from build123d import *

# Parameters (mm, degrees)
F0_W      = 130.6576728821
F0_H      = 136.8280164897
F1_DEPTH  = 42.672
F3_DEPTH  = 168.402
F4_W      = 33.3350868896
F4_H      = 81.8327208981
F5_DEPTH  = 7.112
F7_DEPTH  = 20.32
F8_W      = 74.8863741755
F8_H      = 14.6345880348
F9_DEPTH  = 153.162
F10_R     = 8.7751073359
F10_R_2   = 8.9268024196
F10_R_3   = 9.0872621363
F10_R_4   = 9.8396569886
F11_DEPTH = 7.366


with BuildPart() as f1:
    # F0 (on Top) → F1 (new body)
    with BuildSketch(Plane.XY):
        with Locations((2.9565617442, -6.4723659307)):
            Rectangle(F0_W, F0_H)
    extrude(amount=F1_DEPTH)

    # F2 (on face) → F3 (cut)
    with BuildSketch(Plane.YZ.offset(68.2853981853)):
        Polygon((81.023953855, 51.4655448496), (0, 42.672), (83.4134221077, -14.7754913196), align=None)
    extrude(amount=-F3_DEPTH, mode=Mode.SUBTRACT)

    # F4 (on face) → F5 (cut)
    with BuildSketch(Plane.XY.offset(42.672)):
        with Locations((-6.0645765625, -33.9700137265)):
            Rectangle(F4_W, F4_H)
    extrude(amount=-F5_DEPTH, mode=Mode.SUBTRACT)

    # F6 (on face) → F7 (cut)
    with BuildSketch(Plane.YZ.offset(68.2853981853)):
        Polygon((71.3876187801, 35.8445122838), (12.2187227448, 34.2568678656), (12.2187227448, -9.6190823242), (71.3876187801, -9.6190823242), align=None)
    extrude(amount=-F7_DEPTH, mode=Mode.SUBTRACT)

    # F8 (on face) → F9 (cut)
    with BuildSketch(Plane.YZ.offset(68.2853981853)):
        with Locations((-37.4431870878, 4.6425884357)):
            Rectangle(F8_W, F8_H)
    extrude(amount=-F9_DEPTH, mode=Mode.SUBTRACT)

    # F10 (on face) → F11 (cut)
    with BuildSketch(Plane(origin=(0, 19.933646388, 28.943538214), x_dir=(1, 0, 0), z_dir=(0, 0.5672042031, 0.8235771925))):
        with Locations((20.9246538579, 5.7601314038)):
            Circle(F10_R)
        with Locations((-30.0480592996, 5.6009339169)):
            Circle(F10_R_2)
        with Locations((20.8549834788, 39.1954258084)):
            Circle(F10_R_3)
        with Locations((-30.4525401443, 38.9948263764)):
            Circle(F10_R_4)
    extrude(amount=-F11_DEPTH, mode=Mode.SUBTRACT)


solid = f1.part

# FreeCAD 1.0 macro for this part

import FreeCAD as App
import Part
import Sketcher

V = App.Vector
Q = App.Units.Quantity


def add_polygon(sketch, points):
    """Adds a closed chain of lines whose ends are joined by coincident constraints."""
    first, n = sketch.GeometryCount, len(points)
    for a, b in zip(points, points[1:] + points[:1]):
        sketch.addGeometry(Part.LineSegment(App.Vector(*a, 0), App.Vector(*b, 0)), False)
    for i in range(n):
        sketch.addConstraint(Sketcher.Constraint("Coincident", first + i, 2, first + (i + 1) % n, 1))

doc = App.newDocument("Part")
body = doc.addObject("PartDesign::Body", "Body")

# Sketch on XY plane
sketch1 = body.newObject("Sketcher::SketchObject", "Sketch")
sketch1.AttachmentSupport = (doc.getObject("XY_Plane"), [""])
sketch1.MapMode = "FlatFace"
add_polygon(sketch1, [(-62, 62), (-62, -75), (68, -75), (68, 62)])  # lines 0-3
sketch1.addConstraint([
    Sketcher.Constraint("Vertical", 0),
    Sketcher.Constraint("Horizontal", 1),
    Sketcher.Constraint("Vertical", 2),
    Sketcher.Constraint("Horizontal", 3),
    Sketcher.Constraint("DistanceX", -1, 1, 1, 2, Q("68.285398 mm")),
    Sketcher.Constraint("DistanceX", 1, 1, 1, 2, Q("130.657673 mm")),
    Sketcher.Constraint("DistanceY", 0, 2, 0, 1, Q("136.828016 mm")),
    Sketcher.Constraint("DistanceY", 0, 2, -1, 1, Q("74.886374 mm")),
])
pad1 = body.newObject("PartDesign::Pad", "Pad")
pad1.Profile = sketch1
pad1.Length = Q("1.68 in")

# Sketch on YZ plane
sketch2 = body.newObject("Sketcher::SketchObject", "Sketch001")
sketch2.AttachmentSupport = (doc.getObject("YZ_Plane"), [""])
sketch2.MapMode = "FlatFace"
sketch2.AttachmentOffset = App.Placement(V(0, 0, 68.285398), App.Rotation())
add_polygon(sketch2, [(81, 51), (0, 43), (83, -15)])  # lines 0-2
sketch2.addConstraint([
    Sketcher.Constraint("PointOnObject", 0, 2, -2),
    Sketcher.Constraint("DistanceY", -1, 1, 0, 2, Q("1.68 in")),
    Sketcher.Constraint("Distance", 0, Q("81.499739 mm")),
    Sketcher.Constraint("Distance", 1, Q("101.281851 mm")),
    Sketcher.Constraint("Distance", 2, Q("66.284119 mm")),
    Sketcher.Constraint("DistanceY", 1, 2, -1, 1, Q("14.775491 mm")),
])
pocket1 = body.newObject("PartDesign::Pocket", "Pocket")
pocket1.Profile = sketch2
pocket1.Length = Q("6.63 in")

# Sketch on XY plane
sketch3 = body.newObject("Sketcher::SketchObject", "Sketch002")
sketch3.AttachmentSupport = (doc.getObject("XY_Plane"), [""])
sketch3.MapMode = "FlatFace"
sketch3.AttachmentOffset = App.Placement(V(0, 0, 1.68 * 25.4), App.Rotation())
add_polygon(sketch3, [(-23, 7), (-23, -75), (11, -75), (11, 7)])  # lines 0-3
sketch3.addConstraint([
    Sketcher.Constraint("Vertical", 0),
    Sketcher.Constraint("Horizontal", 1),
    Sketcher.Constraint("Vertical", 2),
    Sketcher.Constraint("Horizontal", 3),
    Sketcher.Constraint("DistanceY", 0, 2, 0, 1, Q("81.832721 mm")),
    Sketcher.Constraint("DistanceX", 1, 1, 1, 2, Q("33.335087 mm")),
    Sketcher.Constraint("DistanceX", 0, 2, -1, 1, Q("22.73212 mm")),
    Sketcher.Constraint("DistanceY", 0, 2, -1, 1, Q("74.886374 mm")),
])
pocket2 = body.newObject("PartDesign::Pocket", "Pocket001")
pocket2.Profile = sketch3
pocket2.Length = Q("0.28 in")

# Sketch on YZ plane
sketch4 = body.newObject("Sketcher::SketchObject", "Sketch003")
sketch4.AttachmentSupport = (doc.getObject("YZ_Plane"), [""])
sketch4.MapMode = "FlatFace"
sketch4.AttachmentOffset = App.Placement(V(0, 0, 68.285398), App.Rotation())
add_polygon(sketch4, [(71, 36), (12, 34), (12, -10), (71, -10)])  # lines 0-3
sketch4.addConstraint([
    Sketcher.Constraint("Vertical", 1),
    Sketcher.Constraint("Horizontal", 2),
    Sketcher.Constraint("Vertical", 3),
    Sketcher.Constraint("DistanceY", 1, 2, 1, 1, Q("43.87595 mm")),
    Sketcher.Constraint("DistanceX", 2, 1, 2, 2, Q("59.168896 mm")),
    Sketcher.Constraint("DistanceY", 3, 1, 3, 2, Q("45.463595 mm")),
    Sketcher.Constraint("DistanceX", -1, 1, 2, 2, Q("71.387619 mm")),
    Sketcher.Constraint("DistanceY", -1, 1, 0, 2, Q("34.256868 mm")),
])
pocket3 = body.newObject("PartDesign::Pocket", "Pocket002")
pocket3.Profile = sketch4
pocket3.Length = Q("0.8 in")

# Sketch on YZ plane
sketch5 = body.newObject("Sketcher::SketchObject", "Sketch004")
sketch5.AttachmentSupport = (doc.getObject("YZ_Plane"), [""])
sketch5.MapMode = "FlatFace"
sketch5.AttachmentOffset = App.Placement(V(0, 0, 68.285398), App.Rotation())
add_polygon(sketch5, [(-75, 12), (-75, -3), (0, -3), (0, 12)])  # lines 0-3
sketch5.addConstraint([
    Sketcher.Constraint("Vertical", 0),
    Sketcher.Constraint("Horizontal", 1),
    Sketcher.Constraint("Vertical", 2),
    Sketcher.Constraint("Horizontal", 3),
    Sketcher.Constraint("PointOnObject", 1, 2, -2),
    Sketcher.Constraint("DistanceY", 0, 2, 0, 1, Q("14.634588 mm")),
    Sketcher.Constraint("DistanceX", 1, 1, 1, 2, Q("74.886374 mm")),
    Sketcher.Constraint("DistanceY", 0, 2, -1, 1, Q("2.674706 mm")),
])
pocket4 = body.newObject("PartDesign::Pocket", "Pocket003")
pocket4.Profile = sketch5
pocket4.Length = Q("6.03 in")

# Sketch on an angled plane
sketch6 = body.newObject("Sketcher::SketchObject", "Sketch005")
sketch6.Placement = App.Placement(V(0, 19.933646, 28.943538), App.Rotation(V(1, 0, 0), V(0, 0.823577192, -0.567204203), V(0, 0.567204203, 0.823577192), "ZXY"))
sketch6.addGeometry([
    Part.Circle(V(21, 6, 0), V(0, 0, 1), 9),
    Part.Circle(V(-30, 6, 0), V(0, 0, 1), 9),
    Part.Circle(V(21, 39, 0), V(0, 0, 1), 9),
    Part.Circle(V(-30, 39, 0), V(0, 0, 1), 10),
], False)
sketch6.addConstraint([
    Sketcher.Constraint("Diameter", 0, Q("17.550215 mm")),
    Sketcher.Constraint("Diameter", 1, Q("17.853605 mm")),
    Sketcher.Constraint("Diameter", 2, Q("18.174524 mm")),
    Sketcher.Constraint("Diameter", 3, Q("19.679314 mm")),
    Sketcher.Constraint("DistanceY", 3, 3, 2, 3, Q("0.200599 mm")),
    Sketcher.Constraint("DistanceY", -1, 1, 0, 3, Q("5.760131 mm")),
    Sketcher.Constraint("DistanceX", 1, 3, -1, 1, Q("30.048059 mm")),
    Sketcher.Constraint("DistanceX", 3, 3, -1, 1, Q("30.45254 mm")),
    Sketcher.Constraint("DistanceX", 2, 3, 0, 3, Q("0.06967 mm")),
    Sketcher.Constraint("DistanceY", 1, 3, 2, 3, Q("33.594492 mm")),
    Sketcher.Constraint("DistanceX", -1, 1, 0, 3, Q("20.924654 mm")),
    Sketcher.Constraint("DistanceY", -1, 1, 1, 3, Q("5.600934 mm")),
])
pocket5 = body.newObject("PartDesign::Pocket", "Pocket004")
pocket5.Profile = sketch6
pocket5.Length = Q("0.29 in")

doc.recompute()
